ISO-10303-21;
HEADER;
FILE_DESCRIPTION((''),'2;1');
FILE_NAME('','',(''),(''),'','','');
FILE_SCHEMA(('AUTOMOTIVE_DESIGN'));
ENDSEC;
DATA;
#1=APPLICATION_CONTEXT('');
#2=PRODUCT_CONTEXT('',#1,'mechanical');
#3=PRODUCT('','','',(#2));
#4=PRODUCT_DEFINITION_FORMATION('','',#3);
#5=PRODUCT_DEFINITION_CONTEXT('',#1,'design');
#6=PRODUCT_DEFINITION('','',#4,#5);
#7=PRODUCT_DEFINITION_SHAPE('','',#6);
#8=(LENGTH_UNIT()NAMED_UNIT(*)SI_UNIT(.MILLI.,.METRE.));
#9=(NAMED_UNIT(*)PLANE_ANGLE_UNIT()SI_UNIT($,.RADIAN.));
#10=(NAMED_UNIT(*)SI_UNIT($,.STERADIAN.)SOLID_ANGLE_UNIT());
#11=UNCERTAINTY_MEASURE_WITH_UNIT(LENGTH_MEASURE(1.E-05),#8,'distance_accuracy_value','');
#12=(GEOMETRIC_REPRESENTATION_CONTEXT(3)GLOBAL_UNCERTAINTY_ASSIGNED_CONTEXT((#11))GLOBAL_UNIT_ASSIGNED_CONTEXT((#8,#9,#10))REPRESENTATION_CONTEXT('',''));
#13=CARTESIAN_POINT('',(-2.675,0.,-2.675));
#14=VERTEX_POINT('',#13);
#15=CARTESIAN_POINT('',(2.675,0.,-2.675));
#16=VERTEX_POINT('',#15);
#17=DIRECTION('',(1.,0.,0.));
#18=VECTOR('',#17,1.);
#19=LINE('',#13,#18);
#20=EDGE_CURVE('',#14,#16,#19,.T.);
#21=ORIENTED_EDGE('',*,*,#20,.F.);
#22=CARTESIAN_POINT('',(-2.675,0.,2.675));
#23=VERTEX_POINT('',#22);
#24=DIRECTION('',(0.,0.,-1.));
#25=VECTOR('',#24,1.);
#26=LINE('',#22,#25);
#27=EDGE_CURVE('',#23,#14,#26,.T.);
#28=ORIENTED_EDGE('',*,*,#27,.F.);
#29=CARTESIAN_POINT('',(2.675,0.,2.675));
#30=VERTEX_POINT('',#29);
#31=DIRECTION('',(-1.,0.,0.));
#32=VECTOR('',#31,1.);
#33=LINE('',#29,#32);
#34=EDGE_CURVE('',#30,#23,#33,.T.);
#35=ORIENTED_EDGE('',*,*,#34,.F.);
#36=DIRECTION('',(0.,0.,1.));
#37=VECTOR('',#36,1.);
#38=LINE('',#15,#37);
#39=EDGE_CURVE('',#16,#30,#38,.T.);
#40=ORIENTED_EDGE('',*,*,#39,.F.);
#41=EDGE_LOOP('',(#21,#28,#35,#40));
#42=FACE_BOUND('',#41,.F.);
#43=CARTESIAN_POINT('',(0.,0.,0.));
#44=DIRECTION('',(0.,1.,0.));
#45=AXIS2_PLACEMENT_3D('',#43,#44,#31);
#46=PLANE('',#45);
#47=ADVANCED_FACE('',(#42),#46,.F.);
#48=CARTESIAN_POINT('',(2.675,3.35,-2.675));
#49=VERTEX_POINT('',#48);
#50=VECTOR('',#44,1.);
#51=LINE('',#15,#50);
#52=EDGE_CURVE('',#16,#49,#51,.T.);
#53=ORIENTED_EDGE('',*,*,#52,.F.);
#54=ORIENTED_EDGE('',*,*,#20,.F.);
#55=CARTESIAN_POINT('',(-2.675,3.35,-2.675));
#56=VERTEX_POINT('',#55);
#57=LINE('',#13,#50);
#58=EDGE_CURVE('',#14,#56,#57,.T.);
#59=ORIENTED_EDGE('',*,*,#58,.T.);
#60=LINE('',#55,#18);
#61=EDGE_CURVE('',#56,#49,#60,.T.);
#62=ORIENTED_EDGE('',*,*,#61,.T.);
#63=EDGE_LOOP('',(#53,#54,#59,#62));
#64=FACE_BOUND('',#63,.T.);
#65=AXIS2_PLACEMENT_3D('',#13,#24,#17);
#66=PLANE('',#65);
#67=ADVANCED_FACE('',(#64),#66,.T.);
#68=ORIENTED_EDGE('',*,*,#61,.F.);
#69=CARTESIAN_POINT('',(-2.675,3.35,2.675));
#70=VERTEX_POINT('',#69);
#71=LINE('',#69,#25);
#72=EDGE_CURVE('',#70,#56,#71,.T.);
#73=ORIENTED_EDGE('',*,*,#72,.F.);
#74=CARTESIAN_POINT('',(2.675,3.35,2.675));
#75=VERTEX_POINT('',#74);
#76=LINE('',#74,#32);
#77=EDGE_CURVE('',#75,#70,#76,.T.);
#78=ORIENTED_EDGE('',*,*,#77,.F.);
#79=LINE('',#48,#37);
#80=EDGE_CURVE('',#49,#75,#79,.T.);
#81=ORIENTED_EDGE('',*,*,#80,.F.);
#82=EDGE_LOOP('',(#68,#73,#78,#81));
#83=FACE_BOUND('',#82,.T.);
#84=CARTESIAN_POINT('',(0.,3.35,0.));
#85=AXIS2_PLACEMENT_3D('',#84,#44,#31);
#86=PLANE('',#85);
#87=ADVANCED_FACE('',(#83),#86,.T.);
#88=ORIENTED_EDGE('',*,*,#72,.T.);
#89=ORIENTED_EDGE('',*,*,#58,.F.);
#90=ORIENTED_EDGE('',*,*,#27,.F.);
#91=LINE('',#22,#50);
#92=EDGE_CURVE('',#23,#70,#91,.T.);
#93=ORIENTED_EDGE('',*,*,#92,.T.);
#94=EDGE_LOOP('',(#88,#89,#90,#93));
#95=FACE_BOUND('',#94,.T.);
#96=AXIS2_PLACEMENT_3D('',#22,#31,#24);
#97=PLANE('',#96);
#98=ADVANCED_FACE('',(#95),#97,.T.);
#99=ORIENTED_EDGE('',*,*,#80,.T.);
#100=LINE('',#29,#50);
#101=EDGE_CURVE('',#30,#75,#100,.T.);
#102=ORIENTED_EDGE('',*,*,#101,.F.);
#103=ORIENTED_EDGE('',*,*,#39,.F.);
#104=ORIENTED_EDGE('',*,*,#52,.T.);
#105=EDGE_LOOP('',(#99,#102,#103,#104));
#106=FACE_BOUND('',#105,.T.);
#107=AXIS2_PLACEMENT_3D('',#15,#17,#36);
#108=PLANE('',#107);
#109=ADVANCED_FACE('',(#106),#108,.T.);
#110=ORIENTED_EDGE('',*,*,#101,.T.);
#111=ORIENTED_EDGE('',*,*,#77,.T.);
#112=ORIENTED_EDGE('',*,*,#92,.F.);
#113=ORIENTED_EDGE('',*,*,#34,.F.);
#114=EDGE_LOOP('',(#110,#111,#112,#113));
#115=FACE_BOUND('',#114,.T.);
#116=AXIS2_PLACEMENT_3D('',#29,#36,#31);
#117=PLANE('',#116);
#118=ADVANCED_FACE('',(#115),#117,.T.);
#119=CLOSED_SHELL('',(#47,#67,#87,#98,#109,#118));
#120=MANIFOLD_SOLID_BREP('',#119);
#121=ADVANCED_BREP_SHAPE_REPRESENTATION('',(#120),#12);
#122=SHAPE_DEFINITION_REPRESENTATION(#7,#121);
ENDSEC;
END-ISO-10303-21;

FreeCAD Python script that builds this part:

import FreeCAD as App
import Part
import Sketcher
from FreeCAD import Vector
Q = App.Units.Quantity

doc = App.newDocument("Part")
body = doc.addObject("PartDesign::Body", "Body")

sketch1 = body.newObject("Sketcher::SketchObject", "Sketch")
sketch1.AttachmentSupport = (doc.getObject("XZ_Plane"), [""])
sketch1.MapMode = "FlatFace"
sketch1.addGeometry(Part.LineSegment(Vector(-2.675, 2.675, 0), Vector(2.675, 2.675, 0)), False)
sketch1.addGeometry(Part.LineSegment(Vector(2.675, 2.675, 0), Vector(2.675, -2.675, 0)), False)
sketch1.addGeometry(Part.LineSegment(Vector(2.675, -2.675, 0), Vector(-2.675, -2.675, 0)), False)
sketch1.addGeometry(Part.LineSegment(Vector(-2.675, -2.675, 0), Vector(-2.675, 2.675, 0)), False)
sketch1.addConstraint(Sketcher.Constraint("Coincident", 0, 2, 1, 1))
sketch1.addConstraint(Sketcher.Constraint("Coincident", 1, 2, 2, 1))
sketch1.addConstraint(Sketcher.Constraint("Coincident", 2, 2, 3, 1))
sketch1.addConstraint(Sketcher.Constraint("Coincident", 3, 2, 0, 1))
sketch1.addConstraint(Sketcher.Constraint("Horizontal", 0))
sketch1.addConstraint(Sketcher.Constraint("Vertical", 1))
sketch1.addConstraint(Sketcher.Constraint("Horizontal", 2))
sketch1.addConstraint(Sketcher.Constraint("Vertical", 3))
sketch1.addConstraint(Sketcher.Constraint("Symmetric", 0, 2, 2, 2, -1, 1))
sketch1.addConstraint(Sketcher.Constraint("Equal", 2, 1))
sketch1.addConstraint(Sketcher.Constraint("DistanceX", 0, 1, 0, 2, Q("5.35 mm")))
pad1 = body.newObject("PartDesign::Pad", "Pad")
pad1.Profile = sketch1
pad1.Length = 3.35
pad1.Reversed = True

doc.recompute()
